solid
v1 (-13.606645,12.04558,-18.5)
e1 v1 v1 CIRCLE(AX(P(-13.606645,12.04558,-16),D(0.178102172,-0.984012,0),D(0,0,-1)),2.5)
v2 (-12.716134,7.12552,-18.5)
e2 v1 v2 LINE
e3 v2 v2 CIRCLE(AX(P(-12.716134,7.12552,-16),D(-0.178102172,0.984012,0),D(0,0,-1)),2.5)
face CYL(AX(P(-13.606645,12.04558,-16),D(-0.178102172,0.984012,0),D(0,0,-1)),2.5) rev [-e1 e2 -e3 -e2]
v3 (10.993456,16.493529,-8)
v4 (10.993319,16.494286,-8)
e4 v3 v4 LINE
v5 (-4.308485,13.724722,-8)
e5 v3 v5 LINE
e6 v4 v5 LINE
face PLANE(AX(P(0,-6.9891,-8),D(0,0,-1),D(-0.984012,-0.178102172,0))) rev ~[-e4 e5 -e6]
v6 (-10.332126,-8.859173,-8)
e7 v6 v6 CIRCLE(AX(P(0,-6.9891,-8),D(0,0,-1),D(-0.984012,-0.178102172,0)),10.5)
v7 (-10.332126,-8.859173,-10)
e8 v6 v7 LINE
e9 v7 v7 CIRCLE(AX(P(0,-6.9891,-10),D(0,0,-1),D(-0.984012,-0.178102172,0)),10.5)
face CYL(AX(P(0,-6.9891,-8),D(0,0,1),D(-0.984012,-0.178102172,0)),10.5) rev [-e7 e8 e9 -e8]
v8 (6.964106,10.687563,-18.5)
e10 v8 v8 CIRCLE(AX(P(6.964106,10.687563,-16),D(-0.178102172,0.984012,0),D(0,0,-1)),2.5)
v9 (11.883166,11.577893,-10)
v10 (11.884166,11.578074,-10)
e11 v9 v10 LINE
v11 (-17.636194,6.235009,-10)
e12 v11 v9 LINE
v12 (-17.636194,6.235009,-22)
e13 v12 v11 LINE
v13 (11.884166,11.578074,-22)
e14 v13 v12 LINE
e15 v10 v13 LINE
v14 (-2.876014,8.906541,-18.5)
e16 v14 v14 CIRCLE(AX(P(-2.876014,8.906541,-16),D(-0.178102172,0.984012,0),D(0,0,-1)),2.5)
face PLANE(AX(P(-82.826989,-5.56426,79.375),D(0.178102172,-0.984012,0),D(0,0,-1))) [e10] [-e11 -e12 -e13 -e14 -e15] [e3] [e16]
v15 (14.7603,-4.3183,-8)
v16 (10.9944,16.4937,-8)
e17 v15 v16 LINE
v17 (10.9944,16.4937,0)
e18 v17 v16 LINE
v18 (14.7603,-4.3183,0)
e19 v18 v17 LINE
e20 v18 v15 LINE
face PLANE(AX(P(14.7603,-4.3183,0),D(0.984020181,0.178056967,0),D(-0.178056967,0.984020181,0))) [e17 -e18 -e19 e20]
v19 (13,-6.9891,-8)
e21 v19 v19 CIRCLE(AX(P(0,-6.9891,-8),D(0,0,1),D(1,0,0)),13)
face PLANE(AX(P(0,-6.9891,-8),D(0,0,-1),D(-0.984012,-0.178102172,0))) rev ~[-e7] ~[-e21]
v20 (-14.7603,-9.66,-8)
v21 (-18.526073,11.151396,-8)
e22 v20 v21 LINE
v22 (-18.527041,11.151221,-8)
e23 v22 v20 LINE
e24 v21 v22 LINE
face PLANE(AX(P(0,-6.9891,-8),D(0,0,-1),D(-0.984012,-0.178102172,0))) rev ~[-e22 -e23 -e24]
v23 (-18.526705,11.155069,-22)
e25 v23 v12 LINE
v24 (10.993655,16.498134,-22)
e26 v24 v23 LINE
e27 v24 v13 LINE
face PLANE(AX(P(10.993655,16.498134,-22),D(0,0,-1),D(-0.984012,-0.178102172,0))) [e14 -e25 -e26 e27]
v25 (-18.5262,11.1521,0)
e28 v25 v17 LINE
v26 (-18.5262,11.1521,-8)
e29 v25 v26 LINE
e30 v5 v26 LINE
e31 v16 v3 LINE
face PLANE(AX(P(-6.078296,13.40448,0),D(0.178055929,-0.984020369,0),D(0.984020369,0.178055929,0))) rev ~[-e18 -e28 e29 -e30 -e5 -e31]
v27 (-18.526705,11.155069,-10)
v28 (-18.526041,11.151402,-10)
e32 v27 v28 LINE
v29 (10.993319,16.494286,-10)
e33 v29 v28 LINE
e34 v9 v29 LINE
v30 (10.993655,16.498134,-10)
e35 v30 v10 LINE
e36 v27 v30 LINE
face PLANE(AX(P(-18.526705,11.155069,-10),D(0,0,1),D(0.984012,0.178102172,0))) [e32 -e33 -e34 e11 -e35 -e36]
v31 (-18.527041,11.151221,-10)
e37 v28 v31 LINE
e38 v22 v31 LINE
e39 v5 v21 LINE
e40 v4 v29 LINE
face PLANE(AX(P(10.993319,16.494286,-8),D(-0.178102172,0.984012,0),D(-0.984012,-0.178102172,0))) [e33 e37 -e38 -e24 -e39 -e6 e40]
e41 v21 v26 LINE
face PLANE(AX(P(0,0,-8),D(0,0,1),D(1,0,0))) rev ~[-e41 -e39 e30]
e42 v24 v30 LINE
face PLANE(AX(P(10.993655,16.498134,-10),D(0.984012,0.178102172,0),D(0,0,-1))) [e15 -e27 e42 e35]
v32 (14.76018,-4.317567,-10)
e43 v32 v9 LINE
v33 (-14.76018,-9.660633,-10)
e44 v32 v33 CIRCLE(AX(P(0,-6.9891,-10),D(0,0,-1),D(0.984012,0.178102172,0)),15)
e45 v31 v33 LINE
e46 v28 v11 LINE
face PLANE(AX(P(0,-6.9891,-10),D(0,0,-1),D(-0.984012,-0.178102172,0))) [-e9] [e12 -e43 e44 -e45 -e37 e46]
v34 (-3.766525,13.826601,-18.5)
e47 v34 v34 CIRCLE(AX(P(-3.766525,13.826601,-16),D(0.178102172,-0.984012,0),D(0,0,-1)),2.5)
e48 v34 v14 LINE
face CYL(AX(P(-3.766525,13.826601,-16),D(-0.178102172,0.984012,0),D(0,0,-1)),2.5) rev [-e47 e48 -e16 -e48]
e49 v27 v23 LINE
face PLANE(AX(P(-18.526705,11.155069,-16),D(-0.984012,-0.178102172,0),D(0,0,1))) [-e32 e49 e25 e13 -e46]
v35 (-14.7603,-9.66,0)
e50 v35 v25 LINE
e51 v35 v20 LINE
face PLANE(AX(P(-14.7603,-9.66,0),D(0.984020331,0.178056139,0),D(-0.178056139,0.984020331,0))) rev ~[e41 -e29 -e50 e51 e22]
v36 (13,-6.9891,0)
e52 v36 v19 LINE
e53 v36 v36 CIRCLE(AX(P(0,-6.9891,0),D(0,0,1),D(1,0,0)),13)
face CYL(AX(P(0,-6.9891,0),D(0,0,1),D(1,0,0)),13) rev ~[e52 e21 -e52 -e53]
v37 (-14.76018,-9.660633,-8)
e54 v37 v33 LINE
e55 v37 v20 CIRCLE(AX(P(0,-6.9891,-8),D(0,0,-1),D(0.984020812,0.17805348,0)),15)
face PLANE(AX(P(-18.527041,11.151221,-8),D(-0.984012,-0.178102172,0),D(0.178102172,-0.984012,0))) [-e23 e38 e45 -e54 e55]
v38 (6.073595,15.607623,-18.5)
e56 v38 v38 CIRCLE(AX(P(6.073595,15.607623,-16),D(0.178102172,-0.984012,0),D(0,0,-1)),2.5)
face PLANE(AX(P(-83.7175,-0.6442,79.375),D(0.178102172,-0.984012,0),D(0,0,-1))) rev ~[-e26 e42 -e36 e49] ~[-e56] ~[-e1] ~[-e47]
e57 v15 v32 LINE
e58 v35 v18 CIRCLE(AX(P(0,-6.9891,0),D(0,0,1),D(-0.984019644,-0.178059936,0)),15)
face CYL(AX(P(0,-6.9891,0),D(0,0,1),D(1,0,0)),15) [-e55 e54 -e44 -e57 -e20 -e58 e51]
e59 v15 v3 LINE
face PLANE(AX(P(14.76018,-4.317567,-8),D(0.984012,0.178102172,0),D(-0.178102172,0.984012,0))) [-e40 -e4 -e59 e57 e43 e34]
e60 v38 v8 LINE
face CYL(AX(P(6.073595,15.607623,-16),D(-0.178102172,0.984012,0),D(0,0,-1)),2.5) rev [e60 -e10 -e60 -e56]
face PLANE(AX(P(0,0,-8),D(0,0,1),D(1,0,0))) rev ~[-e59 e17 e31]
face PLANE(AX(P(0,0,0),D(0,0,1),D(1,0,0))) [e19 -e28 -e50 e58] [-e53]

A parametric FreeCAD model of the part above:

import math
import FreeCAD as App
import Part
import Sketcher
from FreeCAD import Vector
Q = App.Units.Quantity

doc = App.newDocument("Part")
params = doc.addObject("Spreadsheet::Sheet", "Params")
for row, (alias, value) in enumerate([
    ("sketch1_diameter", "26 mm"),
    ("sketch1_radius", "15 mm"),
    ("sketch1_length", "21.15 mm"),
    ("pad1_length", "8 mm"),
    ("sketch2_diameter", "21 mm"),
    ("sketch2_radius", "15 mm"),
    ("sketch2_length", "21.15 mm"),
    ("pad2_length", "2 mm"),
    ("sketch3_diameter", "5 mm"),
    ("sketch3_width", "12 mm"),
    ("pad3_length", "5 mm"),
], start=1):
    params.set(f"A{row}", alias)
    params.set(f"B{row}", "=" + value)
    params.setAlias(f"B{row}", alias)

body = doc.addObject("PartDesign::Body", "Body")

# Sketch on XY plane
sketch1 = body.newObject("Sketcher::SketchObject", "Sketch")
sketch1.AttachmentSupport = (doc.getObject("XY_Plane"), [""])
sketch1.MapMode = "FlatFace"
sketch1.addGeometry([
    Part.LineSegment(Vector(11, 16, 0), Vector(-19, 11, 0)),  # 0
    Part.LineSegment(Vector(-19, 11, 0), Vector(-15, -10, 0)),  # 1
    Part.ArcOfCircle(Part.Circle(Vector(0, -7, 0), Vector(0, 0, 1), 15), math.radians(-170), math.radians(10)),  # 2
    Part.LineSegment(Vector(15, -4, 0), Vector(11, 16, 0)),  # 3
    Part.Circle(Vector(0, -7, 0), Vector(0, 0, 1), 13),  # 4
], False)
sketch1.addConstraint([
    Sketcher.Constraint("Coincident", 0, 2, 1, 1),
    Sketcher.Constraint("Tangent", 1, 2, 2, 1),
    Sketcher.Constraint("Tangent", 2, 2, 3, 1),
    Sketcher.Constraint("Coincident", 3, 2, 0, 1),
    Sketcher.Constraint("Coincident", 4, 3, 2, 3),
    Sketcher.Constraint("PointOnObject", 2, 3, -2),
    Sketcher.Constraint("Perpendicular", 0, 1),
    Sketcher.Constraint("Parallel", 1, 3),
    Sketcher.Constraint("Diameter", 4, 26.0),
    Sketcher.Constraint("Radius", 2, 15.0),
    Sketcher.Constraint("Distance", 1, 21.15),
    Sketcher.Constraint("DistanceY", 1, 2, -1, 1, 9.66),
    Sketcher.Constraint("DistanceY", 2, 3, -1, 1, 6.989),
])
sketch1.setExpression("Constraints[8]", "Params.sketch1_diameter")
sketch1.setExpression("Constraints[9]", "Params.sketch1_radius")
sketch1.setExpression("Constraints[10]", "Params.sketch1_length")
pad1 = body.newObject("PartDesign::Pad", "Pad")
pad1.Profile = sketch1
pad1.setExpression("Length", "Params.pad1_length")
pad1.Reversed = True

# Sketch on XY plane
sketch2 = body.newObject("Sketcher::SketchObject", "Sketch001")
sketch2.AttachmentSupport = (doc.getObject("XY_Plane"), [""])
sketch2.MapMode = "FlatFace"
sketch2.AttachmentOffset = App.Placement(Vector(0, 0, -8), App.Rotation())
sketch2.addGeometry([
    Part.LineSegment(Vector(-15, -10, 0), Vector(-19, 11, 0)),  # 0
    Part.LineSegment(Vector(-19, 11, 0), Vector(11, 16, 0)),  # 1
    Part.LineSegment(Vector(11, 16, 0), Vector(15, -4, 0)),  # 2
    Part.ArcOfCircle(Part.Circle(Vector(0, -7, 0), Vector(0, 0, 1), 15), math.radians(-170), math.radians(10)),  # 3
    Part.Circle(Vector(0, -7, 0), Vector(0, 0, 1), 10),  # 4
], False)
sketch2.addConstraint([
    Sketcher.Constraint("Coincident", 0, 2, 1, 1),
    Sketcher.Constraint("Coincident", 1, 2, 2, 1),
    Sketcher.Constraint("Tangent", 2, 2, 3, 2),
    Sketcher.Constraint("Tangent", 3, 1, 0, 1),
    Sketcher.Constraint("Coincident", 4, 3, 3, 3),
    Sketcher.Constraint("PointOnObject", 3, 3, -2),
    Sketcher.Constraint("Perpendicular", 0, 1),
    Sketcher.Constraint("Perpendicular", 1, 2),
    Sketcher.Constraint("Diameter", 4, 21.0),
    Sketcher.Constraint("Radius", 3, 15.0),
    Sketcher.Constraint("Angle", 0, Q("100.2592 deg")),
    Sketcher.Constraint("Distance", 0, 21.15),
    Sketcher.Constraint("DistanceY", 3, 3, -1, 1, 6.989),
])
sketch2.setExpression("Constraints[8]", "Params.sketch2_diameter")
sketch2.setExpression("Constraints[9]", "Params.sketch2_radius")
sketch2.setExpression("Constraints[11]", "Params.sketch2_length")
pad2 = body.newObject("PartDesign::Pad", "Pad001")
pad2.Profile = sketch2
pad2.setExpression("Length", "Params.pad2_length")
pad2.Reversed = True

# Sketch on an angled plane
sketch3 = body.newObject("Sketcher::SketchObject", "Sketch002")
sketch3.Placement = App.Placement(Vector(-83.7175, -0.6442, 79.375), App.Rotation(Vector(0, 0, -1), Vector(0.984012, 0.178102172, 0), Vector(0.178102172, -0.984012, 0), "ZXY"))
sketch3.addGeometry([
    Part.LineSegment(Vector(89.4, 96.2, 0), Vector(89.4, 66.2, 0)),  # 0
    Part.LineSegment(Vector(89.4, 66.2, 0), Vector(101.4, 66.2, 0)),  # 1
    Part.LineSegment(Vector(101.4, 66.2, 0), Vector(101.4, 96.2, 0)),  # 2
    Part.LineSegment(Vector(101.4, 96.2, 0), Vector(89.4, 96.2, 0)),  # 3
    Part.Circle(Vector(95.4, 91.2, 0), Vector(0, 0, 1), 2.5),  # 4
    Part.Circle(Vector(95.4, 81.2, 0), Vector(0, 0, 1), 2.5),  # 5
    Part.Circle(Vector(95.4, 71.2, 0), Vector(0, 0, 1), 2.5),  # 6
], False)
sketch3.addConstraint([
    Sketcher.Constraint("Coincident", 0, 2, 1, 1),
    Sketcher.Constraint("Coincident", 1, 2, 2, 1),
    Sketcher.Constraint("Coincident", 2, 2, 3, 1),
    Sketcher.Constraint("Coincident", 3, 2, 0, 1),
    Sketcher.Constraint("Vertical", 0),
    Sketcher.Constraint("Horizontal", 1),
    Sketcher.Constraint("Vertical", 2),
    Sketcher.Constraint("Horizontal", 3),
    Sketcher.Constraint("Equal", 4, 5),
    Sketcher.Constraint("Equal", 5, 6),
    Sketcher.Constraint("Vertical", 4, 3, 5, 3),
    Sketcher.Constraint("Vertical", 5, 3, 6, 3),
    Sketcher.Constraint("Diameter", 4, 5.0),
    Sketcher.Constraint("DistanceX", 1, 1, 1, 2, 12.0),
    Sketcher.Constraint("DistanceY", 5, 3, 4, 3, 10.0),
    Sketcher.Constraint("DistanceY", 6, 3, 5, 3, 10.0),
    Sketcher.Constraint("DistanceY", 0, 2, 6, 3, 5.0),
    Sketcher.Constraint("DistanceY", 4, 3, 2, 2, 5.0),
    Sketcher.Constraint("DistanceX", 0, 2, 6, 3, 6.0),
    Sketcher.Constraint("DistanceY", -1, 1, 4, 3, 91.25),
    Sketcher.Constraint("DistanceX", -1, 1, 4, 3, 95.375),
])
sketch3.setExpression("Constraints[12]", "Params.sketch3_diameter")
sketch3.setExpression("Constraints[13]", "Params.sketch3_width")
pad3 = body.newObject("PartDesign::Pad", "Pad002")
pad3.Profile = sketch3
pad3.setExpression("Length", "Params.pad3_length")

doc.recompute()
